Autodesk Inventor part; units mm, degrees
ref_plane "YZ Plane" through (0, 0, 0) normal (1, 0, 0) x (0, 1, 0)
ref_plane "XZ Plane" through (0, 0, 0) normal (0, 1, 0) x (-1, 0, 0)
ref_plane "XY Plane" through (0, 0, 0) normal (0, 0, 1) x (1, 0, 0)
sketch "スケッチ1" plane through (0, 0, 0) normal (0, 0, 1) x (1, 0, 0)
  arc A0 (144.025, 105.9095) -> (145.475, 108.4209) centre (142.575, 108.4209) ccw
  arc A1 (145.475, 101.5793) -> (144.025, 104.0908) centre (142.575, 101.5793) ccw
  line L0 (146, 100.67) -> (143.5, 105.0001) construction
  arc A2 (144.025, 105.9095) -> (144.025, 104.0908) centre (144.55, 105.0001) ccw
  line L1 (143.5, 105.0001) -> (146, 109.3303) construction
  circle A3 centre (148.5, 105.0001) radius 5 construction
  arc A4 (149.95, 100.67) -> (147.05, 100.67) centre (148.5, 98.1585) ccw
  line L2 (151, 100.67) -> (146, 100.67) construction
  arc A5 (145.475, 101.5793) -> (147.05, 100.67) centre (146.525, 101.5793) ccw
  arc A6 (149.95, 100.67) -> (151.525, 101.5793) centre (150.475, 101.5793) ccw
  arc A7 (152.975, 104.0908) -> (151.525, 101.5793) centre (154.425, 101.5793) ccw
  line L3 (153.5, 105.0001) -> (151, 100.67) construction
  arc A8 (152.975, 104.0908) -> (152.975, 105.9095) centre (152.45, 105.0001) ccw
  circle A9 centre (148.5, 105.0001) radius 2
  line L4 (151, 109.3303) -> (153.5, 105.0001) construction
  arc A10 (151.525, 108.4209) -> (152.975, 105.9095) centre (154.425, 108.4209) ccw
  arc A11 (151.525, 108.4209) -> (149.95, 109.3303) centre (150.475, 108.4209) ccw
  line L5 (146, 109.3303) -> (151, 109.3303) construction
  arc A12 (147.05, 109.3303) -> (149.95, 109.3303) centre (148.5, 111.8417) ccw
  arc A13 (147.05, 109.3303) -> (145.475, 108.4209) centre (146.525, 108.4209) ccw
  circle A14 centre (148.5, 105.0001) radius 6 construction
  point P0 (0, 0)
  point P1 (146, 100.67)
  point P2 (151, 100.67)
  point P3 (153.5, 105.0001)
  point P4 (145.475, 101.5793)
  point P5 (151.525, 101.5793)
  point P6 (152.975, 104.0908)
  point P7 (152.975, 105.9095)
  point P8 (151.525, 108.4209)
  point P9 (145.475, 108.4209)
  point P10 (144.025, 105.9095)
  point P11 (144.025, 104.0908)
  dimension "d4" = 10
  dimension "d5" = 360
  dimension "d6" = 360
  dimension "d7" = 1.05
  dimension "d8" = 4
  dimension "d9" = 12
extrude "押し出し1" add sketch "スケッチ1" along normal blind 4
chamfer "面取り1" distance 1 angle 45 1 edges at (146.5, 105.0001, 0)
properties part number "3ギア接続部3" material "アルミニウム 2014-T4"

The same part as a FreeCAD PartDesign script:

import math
import FreeCAD as App
import Part
import Sketcher


def edges_at(feature, points):
    """Names of the edges that pass closest to the given points."""
    edges = feature.Shape.Edges
    near = lambda p: min(range(len(edges)), key=lambda i: edges[i].distToShape(Part.Vertex(*p))[0])
    return sorted({f"Edge{near(p) + 1}" for p in points})

doc = App.newDocument("Part")
body = doc.addObject("PartDesign::Body", "Body")

sketch1 = body.newObject("Sketcher::SketchObject", "Sketch")
sketch1.AttachmentSupport = (doc.getObject("XY_Plane"), [""])
sketch1.MapMode = "FlatFace"
sketch1.addGeometry([
    Part.ArcOfCircle(Part.Circle(App.Vector(142.575, 108.4209, 0), App.Vector(0, 0, 1), 2.899936), math.radians(-59.999272), math.radians(0)),
    Part.ArcOfCircle(Part.Circle(App.Vector(144.55, 105.0001, 0), App.Vector(0, 0, 1), 1.050064), math.radians(119.998), math.radians(239.999272)),
    Part.ArcOfCircle(Part.Circle(App.Vector(142.575, 101.5793, 0), App.Vector(0, 0, 1), 2.9), math.radians(0), math.radians(60.00026)),
    Part.ArcOfCircle(Part.Circle(App.Vector(146.525, 101.5793, 0), App.Vector(0, 0, 1), 1.05), math.radians(180), math.radians(300.000728)),
    Part.ArcOfCircle(Part.Circle(App.Vector(148.5, 98.1585, 0), App.Vector(0, 0, 1), 2.900023), math.radians(60.00026), math.radians(119.99974)),
    Part.ArcOfCircle(Part.Circle(App.Vector(150.475, 101.5793, 0), App.Vector(0, 0, 1), 1.049977), math.radians(-120.000728), math.radians(0)),
    Part.ArcOfCircle(Part.Circle(App.Vector(154.425, 101.5793, 0), App.Vector(0, 0, 1), 2.900023), math.radians(119.99974), math.radians(180)),
    Part.ArcOfCircle(Part.Circle(App.Vector(152.45, 105.0001, 0), App.Vector(0, 0, 1), 1.049977), math.radians(-59.999272), math.radians(60.002)),
    Part.ArcOfCircle(Part.Circle(App.Vector(154.425, 108.4209, 0), App.Vector(0, 0, 1), 2.9), math.radians(180), math.radians(239.999272)),
    Part.ArcOfCircle(Part.Circle(App.Vector(150.475, 108.4209, 0), App.Vector(0, 0, 1), 1.05), math.radians(0), math.radians(119.998)),
    Part.ArcOfCircle(Part.Circle(App.Vector(148.5, 111.8417, 0), App.Vector(0, 0, 1), 2.899936), math.radians(-120.000728), math.radians(-59.999272)),
    Part.ArcOfCircle(Part.Circle(App.Vector(146.525, 108.4209, 0), App.Vector(0, 0, 1), 1.050064), math.radians(60.002), math.radians(180)),
    Part.Circle(App.Vector(148.5, 105.0001, 0), App.Vector(0, 0, 1), 2),
], False)
sketch1.addConstraint([
    Sketcher.Constraint("Tangent", 0, 1, 1, 1),
    Sketcher.Constraint("Tangent", 1, 2, 2, 2),
    Sketcher.Constraint("Tangent", 2, 1, 3, 1),
    Sketcher.Constraint("Tangent", 3, 2, 4, 2),
    Sketcher.Constraint("Tangent", 4, 1, 5, 1),
    Sketcher.Constraint("Tangent", 5, 2, 6, 2),
    Sketcher.Constraint("Tangent", 6, 1, 7, 1),
    Sketcher.Constraint("Tangent", 7, 2, 8, 2),
    Sketcher.Constraint("Tangent", 8, 1, 9, 1),
    Sketcher.Constraint("Tangent", 9, 2, 10, 2),
    Sketcher.Constraint("Tangent", 10, 1, 11, 1),
    Sketcher.Constraint("Tangent", 11, 2, 0, 2),
    Sketcher.Constraint("Equal", 0, 2),
    Sketcher.Constraint("Equal", 1, 3),
    Sketcher.Constraint("Equal", 2, 4),
    Sketcher.Constraint("Equal", 3, 5),
    Sketcher.Constraint("Equal", 4, 6),
    Sketcher.Constraint("Equal", 5, 7),
    Sketcher.Constraint("Equal", 6, 8),
    Sketcher.Constraint("Equal", 7, 9),
    Sketcher.Constraint("Equal", 8, 10),
    Sketcher.Constraint("Equal", 9, 11),
    Sketcher.Constraint("Horizontal", 2, 3, 3, 3),
    Sketcher.Constraint("Horizontal", 3, 3, 5, 3),
    Sketcher.Constraint("Horizontal", 5, 3, 6, 3),
    Sketcher.Constraint("Horizontal", 1, 3, 7, 3),
    Sketcher.Constraint("Horizontal", 0, 3, 8, 3),
    Sketcher.Constraint("Horizontal", 8, 3, 9, 3),
    Sketcher.Constraint("Horizontal", 9, 3, 11, 3),
    Sketcher.Constraint("Horizontal", 7, 3, 12, 3),
    Sketcher.Constraint("Vertical", 0, 3, 2, 3),
    Sketcher.Constraint("Vertical", 10, 3, 12, 3),
    Sketcher.Constraint("Diameter", 12, 4.0),
    Sketcher.Constraint("Radius", 1, 1.05),
    Sketcher.Constraint("Radius", 0, 2.9),
    Sketcher.Constraint("DistanceY", -1, 1, 1, 3, 105.0),
    Sketcher.Constraint("DistanceX", -1, 1, 4, 3, 148.5),
    Sketcher.Constraint("DistanceX", 2, 3, 5, 3, 7.9),
    Sketcher.Constraint("DistanceX", 1, 3, 7, 3, 7.9),
])
pad1 = body.newObject("PartDesign::Pad", "Pad")
pad1.Profile = sketch1
pad1.Length = 4
doc.recompute()

chamfer = body.newObject("PartDesign::Chamfer", "Chamfer")
chamfer.Base = (pad1, edges_at(pad1, [(146.5, 105, 0)]))
chamfer.Size = 1

doc.recompute()
